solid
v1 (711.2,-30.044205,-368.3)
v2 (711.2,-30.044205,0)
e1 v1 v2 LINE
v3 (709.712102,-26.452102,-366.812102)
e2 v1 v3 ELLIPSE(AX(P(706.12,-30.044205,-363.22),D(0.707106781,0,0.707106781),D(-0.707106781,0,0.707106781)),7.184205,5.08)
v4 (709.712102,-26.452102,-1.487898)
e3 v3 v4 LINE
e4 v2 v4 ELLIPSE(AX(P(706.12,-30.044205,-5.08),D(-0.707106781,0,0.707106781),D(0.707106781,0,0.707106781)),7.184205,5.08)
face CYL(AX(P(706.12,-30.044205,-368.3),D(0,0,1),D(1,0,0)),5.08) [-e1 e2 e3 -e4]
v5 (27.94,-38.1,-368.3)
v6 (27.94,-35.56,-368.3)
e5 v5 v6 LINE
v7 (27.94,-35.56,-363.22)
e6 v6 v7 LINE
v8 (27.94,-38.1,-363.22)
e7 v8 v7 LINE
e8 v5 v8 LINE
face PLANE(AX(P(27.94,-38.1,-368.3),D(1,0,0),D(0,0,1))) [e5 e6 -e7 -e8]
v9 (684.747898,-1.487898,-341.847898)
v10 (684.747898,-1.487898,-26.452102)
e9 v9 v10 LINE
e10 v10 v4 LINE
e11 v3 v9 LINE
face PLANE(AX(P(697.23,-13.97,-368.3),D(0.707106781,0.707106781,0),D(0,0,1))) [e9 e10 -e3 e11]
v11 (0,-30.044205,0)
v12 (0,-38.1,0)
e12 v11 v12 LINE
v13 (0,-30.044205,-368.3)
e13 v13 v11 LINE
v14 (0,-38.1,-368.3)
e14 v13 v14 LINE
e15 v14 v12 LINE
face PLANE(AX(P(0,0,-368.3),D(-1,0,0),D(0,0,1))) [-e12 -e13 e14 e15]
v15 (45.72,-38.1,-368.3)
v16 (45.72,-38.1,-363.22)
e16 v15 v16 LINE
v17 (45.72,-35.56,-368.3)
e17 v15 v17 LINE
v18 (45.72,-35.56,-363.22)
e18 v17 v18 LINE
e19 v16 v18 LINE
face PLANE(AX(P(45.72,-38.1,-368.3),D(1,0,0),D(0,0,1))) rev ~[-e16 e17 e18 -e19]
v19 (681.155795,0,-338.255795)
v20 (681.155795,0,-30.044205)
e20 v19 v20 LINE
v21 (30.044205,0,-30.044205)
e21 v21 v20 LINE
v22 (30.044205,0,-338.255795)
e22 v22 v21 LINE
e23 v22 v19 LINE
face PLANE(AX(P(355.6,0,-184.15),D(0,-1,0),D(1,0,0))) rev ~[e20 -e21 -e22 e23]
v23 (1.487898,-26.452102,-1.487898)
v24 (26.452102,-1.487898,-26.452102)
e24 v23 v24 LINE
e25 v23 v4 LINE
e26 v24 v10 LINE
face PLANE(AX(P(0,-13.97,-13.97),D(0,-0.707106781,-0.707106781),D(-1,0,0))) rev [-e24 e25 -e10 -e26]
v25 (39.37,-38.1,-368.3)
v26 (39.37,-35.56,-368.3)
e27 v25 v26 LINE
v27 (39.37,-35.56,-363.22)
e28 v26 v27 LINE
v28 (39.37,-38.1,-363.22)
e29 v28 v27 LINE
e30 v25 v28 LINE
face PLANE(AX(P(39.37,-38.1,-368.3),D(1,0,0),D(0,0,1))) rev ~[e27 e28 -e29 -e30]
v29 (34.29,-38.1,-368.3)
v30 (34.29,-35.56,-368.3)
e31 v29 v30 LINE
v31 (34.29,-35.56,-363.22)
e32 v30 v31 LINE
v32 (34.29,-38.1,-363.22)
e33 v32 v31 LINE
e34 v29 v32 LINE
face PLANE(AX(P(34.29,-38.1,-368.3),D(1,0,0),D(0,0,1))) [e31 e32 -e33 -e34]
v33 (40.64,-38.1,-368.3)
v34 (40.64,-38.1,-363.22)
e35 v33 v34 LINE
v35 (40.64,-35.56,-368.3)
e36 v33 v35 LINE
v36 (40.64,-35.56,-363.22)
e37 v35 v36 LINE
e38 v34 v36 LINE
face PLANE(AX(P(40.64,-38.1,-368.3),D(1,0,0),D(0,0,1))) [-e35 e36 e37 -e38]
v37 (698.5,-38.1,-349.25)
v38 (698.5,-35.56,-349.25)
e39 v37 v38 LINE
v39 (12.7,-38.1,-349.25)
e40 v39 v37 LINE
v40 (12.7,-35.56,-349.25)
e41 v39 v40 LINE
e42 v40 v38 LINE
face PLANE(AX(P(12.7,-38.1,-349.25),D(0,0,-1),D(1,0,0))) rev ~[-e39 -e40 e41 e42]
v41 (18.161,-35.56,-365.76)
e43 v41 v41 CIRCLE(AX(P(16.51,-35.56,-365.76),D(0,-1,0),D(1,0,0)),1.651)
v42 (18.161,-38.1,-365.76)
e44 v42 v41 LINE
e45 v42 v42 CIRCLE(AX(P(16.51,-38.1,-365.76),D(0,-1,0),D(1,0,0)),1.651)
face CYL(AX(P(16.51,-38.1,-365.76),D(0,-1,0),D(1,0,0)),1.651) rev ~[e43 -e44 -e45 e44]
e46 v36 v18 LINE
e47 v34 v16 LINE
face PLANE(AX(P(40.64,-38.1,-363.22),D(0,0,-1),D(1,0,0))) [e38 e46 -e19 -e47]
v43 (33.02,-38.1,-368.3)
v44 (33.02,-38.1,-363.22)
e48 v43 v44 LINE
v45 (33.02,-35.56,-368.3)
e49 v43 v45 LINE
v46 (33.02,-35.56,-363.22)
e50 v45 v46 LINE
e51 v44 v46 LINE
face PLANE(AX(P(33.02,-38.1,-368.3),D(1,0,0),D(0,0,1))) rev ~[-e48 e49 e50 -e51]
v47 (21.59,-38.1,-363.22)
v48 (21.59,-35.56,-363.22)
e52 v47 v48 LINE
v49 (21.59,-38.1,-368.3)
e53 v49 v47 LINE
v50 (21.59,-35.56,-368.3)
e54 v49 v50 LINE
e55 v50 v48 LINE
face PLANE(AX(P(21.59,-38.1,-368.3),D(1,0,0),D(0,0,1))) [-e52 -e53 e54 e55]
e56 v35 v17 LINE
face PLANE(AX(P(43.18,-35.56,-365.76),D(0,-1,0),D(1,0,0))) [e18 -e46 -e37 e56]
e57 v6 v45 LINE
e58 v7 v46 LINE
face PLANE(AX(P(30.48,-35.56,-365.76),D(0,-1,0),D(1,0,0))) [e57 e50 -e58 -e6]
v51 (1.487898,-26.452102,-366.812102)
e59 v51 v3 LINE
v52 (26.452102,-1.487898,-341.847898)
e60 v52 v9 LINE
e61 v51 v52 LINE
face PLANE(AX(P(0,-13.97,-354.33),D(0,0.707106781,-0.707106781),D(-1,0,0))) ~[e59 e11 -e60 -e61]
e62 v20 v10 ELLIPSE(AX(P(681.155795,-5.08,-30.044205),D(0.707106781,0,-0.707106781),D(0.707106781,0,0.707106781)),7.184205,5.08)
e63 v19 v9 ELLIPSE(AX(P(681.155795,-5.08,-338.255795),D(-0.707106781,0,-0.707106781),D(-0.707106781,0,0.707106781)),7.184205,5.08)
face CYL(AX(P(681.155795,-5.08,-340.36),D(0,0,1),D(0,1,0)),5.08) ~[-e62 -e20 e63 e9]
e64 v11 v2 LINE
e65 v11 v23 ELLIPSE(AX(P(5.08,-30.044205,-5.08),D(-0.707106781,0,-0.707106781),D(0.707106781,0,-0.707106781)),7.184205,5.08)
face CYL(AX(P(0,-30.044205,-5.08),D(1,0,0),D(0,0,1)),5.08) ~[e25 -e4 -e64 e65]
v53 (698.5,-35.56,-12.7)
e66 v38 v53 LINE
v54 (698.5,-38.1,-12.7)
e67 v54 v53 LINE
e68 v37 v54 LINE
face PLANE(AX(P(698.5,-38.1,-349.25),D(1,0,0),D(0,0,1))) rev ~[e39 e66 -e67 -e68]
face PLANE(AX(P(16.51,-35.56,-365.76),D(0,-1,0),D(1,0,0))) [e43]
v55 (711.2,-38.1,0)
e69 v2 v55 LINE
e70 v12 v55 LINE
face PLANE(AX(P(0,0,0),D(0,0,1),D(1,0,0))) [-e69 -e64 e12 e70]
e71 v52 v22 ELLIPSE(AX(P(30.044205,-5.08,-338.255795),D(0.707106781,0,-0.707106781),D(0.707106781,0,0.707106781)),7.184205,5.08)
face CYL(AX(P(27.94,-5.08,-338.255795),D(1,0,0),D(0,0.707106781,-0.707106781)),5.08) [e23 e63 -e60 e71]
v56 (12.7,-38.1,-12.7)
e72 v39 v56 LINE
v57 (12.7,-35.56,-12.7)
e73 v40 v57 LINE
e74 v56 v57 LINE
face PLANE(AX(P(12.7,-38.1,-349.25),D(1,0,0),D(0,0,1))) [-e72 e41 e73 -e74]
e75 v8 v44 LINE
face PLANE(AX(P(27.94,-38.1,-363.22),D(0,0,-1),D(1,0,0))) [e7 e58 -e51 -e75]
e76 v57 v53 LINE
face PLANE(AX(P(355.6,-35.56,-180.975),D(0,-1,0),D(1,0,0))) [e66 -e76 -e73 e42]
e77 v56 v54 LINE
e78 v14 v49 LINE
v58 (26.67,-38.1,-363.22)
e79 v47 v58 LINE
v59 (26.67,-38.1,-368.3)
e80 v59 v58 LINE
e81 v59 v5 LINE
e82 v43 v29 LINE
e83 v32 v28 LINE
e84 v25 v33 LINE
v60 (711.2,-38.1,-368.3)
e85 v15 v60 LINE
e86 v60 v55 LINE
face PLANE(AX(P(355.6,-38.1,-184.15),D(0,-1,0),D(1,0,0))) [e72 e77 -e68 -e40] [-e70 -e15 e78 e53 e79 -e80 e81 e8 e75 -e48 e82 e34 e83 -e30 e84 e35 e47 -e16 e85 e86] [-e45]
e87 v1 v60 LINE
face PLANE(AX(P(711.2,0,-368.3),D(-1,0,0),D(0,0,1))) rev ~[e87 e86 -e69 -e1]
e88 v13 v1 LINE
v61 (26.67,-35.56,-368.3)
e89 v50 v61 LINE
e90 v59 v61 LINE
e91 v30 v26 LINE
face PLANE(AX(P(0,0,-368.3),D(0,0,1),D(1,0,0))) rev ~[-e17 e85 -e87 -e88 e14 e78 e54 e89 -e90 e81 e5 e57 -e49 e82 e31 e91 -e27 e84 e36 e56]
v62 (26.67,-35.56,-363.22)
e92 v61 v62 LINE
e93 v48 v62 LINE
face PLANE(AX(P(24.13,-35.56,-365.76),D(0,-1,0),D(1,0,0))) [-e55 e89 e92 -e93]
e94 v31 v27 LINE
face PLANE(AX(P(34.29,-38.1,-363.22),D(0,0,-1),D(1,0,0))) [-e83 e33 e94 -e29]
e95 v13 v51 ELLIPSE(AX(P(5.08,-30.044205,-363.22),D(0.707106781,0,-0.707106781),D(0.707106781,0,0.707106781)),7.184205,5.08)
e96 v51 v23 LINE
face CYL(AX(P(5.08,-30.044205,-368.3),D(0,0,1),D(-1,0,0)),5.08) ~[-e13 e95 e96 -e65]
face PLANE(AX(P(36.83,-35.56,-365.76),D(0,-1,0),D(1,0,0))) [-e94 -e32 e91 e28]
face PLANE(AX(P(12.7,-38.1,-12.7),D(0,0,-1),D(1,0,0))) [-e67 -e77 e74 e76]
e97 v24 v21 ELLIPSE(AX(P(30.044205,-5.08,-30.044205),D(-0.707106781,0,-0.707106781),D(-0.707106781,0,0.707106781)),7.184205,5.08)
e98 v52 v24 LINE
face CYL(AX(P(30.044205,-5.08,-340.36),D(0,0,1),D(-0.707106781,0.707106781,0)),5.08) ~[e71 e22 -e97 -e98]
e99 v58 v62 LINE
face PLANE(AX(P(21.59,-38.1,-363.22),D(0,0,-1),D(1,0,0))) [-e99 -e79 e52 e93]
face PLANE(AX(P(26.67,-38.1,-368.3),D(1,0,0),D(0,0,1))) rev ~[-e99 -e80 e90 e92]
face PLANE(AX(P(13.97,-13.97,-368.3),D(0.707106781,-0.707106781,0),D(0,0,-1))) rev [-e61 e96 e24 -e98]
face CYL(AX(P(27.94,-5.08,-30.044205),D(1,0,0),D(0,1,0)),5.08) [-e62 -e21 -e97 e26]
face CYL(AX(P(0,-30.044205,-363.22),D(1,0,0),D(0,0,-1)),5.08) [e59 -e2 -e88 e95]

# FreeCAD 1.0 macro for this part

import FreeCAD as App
import Part
import Sketcher
from FreeCAD import Vector
Q = App.Units.Quantity


def edges_at(feature, points):
    """Names of the edges that pass closest to the given points."""
    edges = feature.Shape.Edges
    near = lambda p: min(range(len(edges)), key=lambda i: edges[i].distToShape(Part.Vertex(*p))[0])
    return sorted({f"Edge{near(p) + 1}" for p in points})


def add_polygon(sketch, points):
    """Adds a closed chain of lines whose ends are joined by coincident constraints."""
    first, n = sketch.GeometryCount, len(points)
    for a, b in zip(points, points[1:] + points[:1]):
        sketch.addGeometry(Part.LineSegment(App.Vector(*a, 0), App.Vector(*b, 0)), False)
    for i in range(n):
        sketch.addConstraint(Sketcher.Constraint("Coincident", first + i, 2, first + (i + 1) % n, 1))

doc = App.newDocument("Part")
body = doc.addObject("PartDesign::Body", "Body")

sketch1 = doc.addObject("Sketcher::SketchObject", "Sketch")
body.addObject(sketch1)
sketch1.AttachmentSupport = (doc.XZ_Plane, [""])
sketch1.MapMode = "FlatFace"
add_polygon(sketch1, [(0, 0), (0, -368), (711, -368), (711, 0)])
sketch1.addConstraint(Sketcher.Constraint("Vertical", 0))
sketch1.addConstraint(Sketcher.Constraint("Horizontal", 1))
sketch1.addConstraint(Sketcher.Constraint("Vertical", 2))
sketch1.addConstraint(Sketcher.Constraint("Horizontal", 3))
sketch1.addConstraint(Sketcher.Constraint("Coincident", 3, 2, -1, 1))
sketch1.addConstraint(Sketcher.Constraint("DistanceX", 1, 1, 1, 2, Q("28 in")))
sketch1.addConstraint(Sketcher.Constraint("DistanceY", 0, 2, 0, 1, Q("14.5 in")))
pad1 = doc.addObject("PartDesign::Pad", "Pad")
body.addObject(pad1)
pad1.Profile = sketch1
pad1.Length = Q("1.5 in")

sketch2 = doc.addObject("Sketcher::SketchObject", "Sketch001")
body.addObject(sketch2)
sketch2.AttachmentSupport = (doc.XZ_Plane, [""])
sketch2.MapMode = "FlatFace"
sketch2.AttachmentOffset = App.Placement(Vector(0, 0, 1.5 * 25.4), App.Rotation())
add_polygon(sketch2, [(13, -13), (13, -349), (698, -349), (698, -13)])
sketch2.addConstraint(Sketcher.Constraint("Vertical", 0))
sketch2.addConstraint(Sketcher.Constraint("Horizontal", 1))
sketch2.addConstraint(Sketcher.Constraint("Vertical", 2))
sketch2.addConstraint(Sketcher.Constraint("Horizontal", 3))
sketch2.addConstraint(Sketcher.Constraint("DistanceX", 1, 1, 1, 2, Q("27 in")))
sketch2.addConstraint(Sketcher.Constraint("DistanceY", 0, 2, 0, 1, Q("13.25 in")))
sketch2.addConstraint(Sketcher.Constraint("DistanceX", -1, 1, 0, 2, Q("0.5 in")))
sketch2.addConstraint(Sketcher.Constraint("DistanceY", 2, 2, -1, 1, Q("0.5 in")))
pocket1 = doc.addObject("PartDesign::Pocket", "Pocket")
body.addObject(pocket1)
pocket1.Profile = sketch2
pocket1.Length = Q("0.1 in")

sketch3 = doc.addObject("Sketcher::SketchObject", "Sketch002")
body.addObject(sketch3)
sketch3.AttachmentSupport = (doc.XZ_Plane, [""])
sketch3.MapMode = "FlatFace"
sketch3.AttachmentOffset = App.Placement(Vector(0, 0, 1.5 * 25.4), App.Rotation())
add_polygon(sketch3, [(21.6, -363.2), (21.6, -368.3), (26.7, -368.3), (26.7, -363.2)])
add_polygon(sketch3, [(40.6, -363.2), (40.6, -368.3), (45.7, -368.3), (45.7, -363.2)])
add_polygon(sketch3, [(34.3, -363.2), (34.3, -368.3), (39.4, -368.3), (39.4, -363.2)])
add_polygon(sketch3, [(27.9, -363.2), (27.9, -368.3), (33, -368.3), (33, -363.2)])
sketch3.addGeometry(Part.Circle(Vector(16.5, -365.8, 0), Vector(0, 0, 1), 1.7), False)
sketch3.addConstraint(Sketcher.Constraint("Vertical", 0))
sketch3.addConstraint(Sketcher.Constraint("Horizontal", 1))
sketch3.addConstraint(Sketcher.Constraint("Vertical", 2))
sketch3.addConstraint(Sketcher.Constraint("Horizontal", 3))
sketch3.addConstraint(Sketcher.Constraint("Vertical", 4))
sketch3.addConstraint(Sketcher.Constraint("Horizontal", 5))
sketch3.addConstraint(Sketcher.Constraint("Vertical", 6))
sketch3.addConstraint(Sketcher.Constraint("Horizontal", 7))
sketch3.addConstraint(Sketcher.Constraint("Vertical", 8))
sketch3.addConstraint(Sketcher.Constraint("Horizontal", 9))
sketch3.addConstraint(Sketcher.Constraint("Vertical", 10))
sketch3.addConstraint(Sketcher.Constraint("Horizontal", 11))
sketch3.addConstraint(Sketcher.Constraint("Vertical", 12))
sketch3.addConstraint(Sketcher.Constraint("Horizontal", 13))
sketch3.addConstraint(Sketcher.Constraint("Vertical", 14))
sketch3.addConstraint(Sketcher.Constraint("Horizontal", 15))
sketch3.addConstraint(Sketcher.Constraint("Horizontal", 1, 2, 4, 2))
sketch3.addConstraint(Sketcher.Constraint("Horizontal", 3, 2, 6, 2))
sketch3.addConstraint(Sketcher.Constraint("Horizontal", 5, 2, 8, 2))
sketch3.addConstraint(Sketcher.Constraint("Horizontal", 7, 2, 10, 2))
sketch3.addConstraint(Sketcher.Constraint("Horizontal", 9, 2, 12, 2))
sketch3.addConstraint(Sketcher.Constraint("Horizontal", 11, 2, 14, 2))
sketch3.addConstraint(Sketcher.Constraint("Equal", 3, 5))
sketch3.addConstraint(Sketcher.Constraint("Equal", 7, 9))
sketch3.addConstraint(Sketcher.Constraint("Equal", 11, 13))
sketch3.addConstraint(Sketcher.Constraint("Equal", 15, 0))
sketch3.addConstraint(Sketcher.Constraint("Diameter", 16, Q("0.13 in")))
sketch3.addConstraint(Sketcher.Constraint("DistanceX", 1, 1, 1, 2, Q("0.2 in")))
sketch3.addConstraint(Sketcher.Constraint("DistanceY", 16, 3, -1, 1, Q("14.4 in")))
sketch3.addConstraint(Sketcher.Constraint("DistanceY", 0, 2, -1, 1, Q("14.5 in")))
sketch3.addConstraint(Sketcher.Constraint("DistanceX", -1, 1, 4, 2, Q("1.6 in")))
sketch3.addConstraint(Sketcher.Constraint("DistanceX", -1, 1, 12, 2, Q("1.1 in")))
sketch3.addConstraint(Sketcher.Constraint("DistanceX", 16, 3, 0, 2, Q("0.2 in")))
sketch3.addConstraint(Sketcher.Constraint("DistanceX", 1, 2, 8, 2, Q("0.3 in")))
sketch3.addConstraint(Sketcher.Constraint("DistanceX", -1, 1, 16, 3, Q("0.65 in")))
pocket2 = doc.addObject("PartDesign::Pocket", "Pocket001")
body.addObject(pocket2)
pocket2.Profile = sketch3
pocket2.Length = Q("0.1 in")

sketch4 = doc.addObject("Sketcher::SketchObject", "Sketch003")
body.addObject(sketch4)
sketch4.AttachmentSupport = (doc.XZ_Plane, [""])
sketch4.MapMode = "FlatFace"
sketch4.AttachmentOffset = App.Placement(Vector(0, 0, 1.5 * 25.4), App.Rotation())
add_polygon(sketch4, [(21.6, -363.2), (21.6, -368.3), (26.7, -368.3), (26.7, -363.2)])
add_polygon(sketch4, [(40.6, -363.2), (40.6, -368.3), (45.7, -368.3), (45.7, -363.2)])
add_polygon(sketch4, [(34.3, -363.2), (34.3, -368.3), (39.4, -368.3), (39.4, -363.2)])
add_polygon(sketch4, [(27.9, -363.2), (27.9, -368.3), (33, -368.3), (33, -363.2)])
sketch4.addGeometry(Part.Circle(Vector(16.5, -365.8, 0), Vector(0, 0, 1), 1.7), False)
sketch4.addConstraint(Sketcher.Constraint("Vertical", 0))
sketch4.addConstraint(Sketcher.Constraint("Horizontal", 1))
sketch4.addConstraint(Sketcher.Constraint("Vertical", 2))
sketch4.addConstraint(Sketcher.Constraint("Horizontal", 3))
sketch4.addConstraint(Sketcher.Constraint("Vertical", 4))
sketch4.addConstraint(Sketcher.Constraint("Horizontal", 5))
sketch4.addConstraint(Sketcher.Constraint("Vertical", 6))
sketch4.addConstraint(Sketcher.Constraint("Horizontal", 7))
sketch4.addConstraint(Sketcher.Constraint("Vertical", 8))
sketch4.addConstraint(Sketcher.Constraint("Horizontal", 9))
sketch4.addConstraint(Sketcher.Constraint("Vertical", 10))
sketch4.addConstraint(Sketcher.Constraint("Horizontal", 11))
sketch4.addConstraint(Sketcher.Constraint("Vertical", 12))
sketch4.addConstraint(Sketcher.Constraint("Horizontal", 13))
sketch4.addConstraint(Sketcher.Constraint("Vertical", 14))
sketch4.addConstraint(Sketcher.Constraint("Horizontal", 15))
sketch4.addConstraint(Sketcher.Constraint("Horizontal", 1, 2, 4, 2))
sketch4.addConstraint(Sketcher.Constraint("Horizontal", 3, 2, 6, 2))
sketch4.addConstraint(Sketcher.Constraint("Horizontal", 5, 2, 8, 2))
sketch4.addConstraint(Sketcher.Constraint("Horizontal", 7, 2, 10, 2))
sketch4.addConstraint(Sketcher.Constraint("Horizontal", 9, 2, 12, 2))
sketch4.addConstraint(Sketcher.Constraint("Horizontal", 11, 2, 14, 2))
sketch4.addConstraint(Sketcher.Constraint("Equal", 3, 5))
sketch4.addConstraint(Sketcher.Constraint("Equal", 7, 9))
sketch4.addConstraint(Sketcher.Constraint("Equal", 11, 13))
sketch4.addConstraint(Sketcher.Constraint("Equal", 15, 0))
sketch4.addConstraint(Sketcher.Constraint("Diameter", 16, Q("0.13 in")))
sketch4.addConstraint(Sketcher.Constraint("DistanceX", 1, 1, 1, 2, Q("0.2 in")))
sketch4.addConstraint(Sketcher.Constraint("DistanceY", 16, 3, -1, 1, Q("14.4 in")))
sketch4.addConstraint(Sketcher.Constraint("DistanceY", 0, 2, -1, 1, Q("14.5 in")))
sketch4.addConstraint(Sketcher.Constraint("DistanceX", -1, 1, 4, 2, Q("1.6 in")))
sketch4.addConstraint(Sketcher.Constraint("DistanceX", -1, 1, 12, 2, Q("1.1 in")))
sketch4.addConstraint(Sketcher.Constraint("DistanceX", 16, 3, 0, 2, Q("0.2 in")))
sketch4.addConstraint(Sketcher.Constraint("DistanceX", 1, 2, 8, 2, Q("0.3 in")))
sketch4.addConstraint(Sketcher.Constraint("DistanceX", -1, 1, 16, 3, Q("0.65 in")))
pocket3 = doc.addObject("PartDesign::Pocket", "Pocket002")
body.addObject(pocket3)
pocket3.Profile = sketch4
pocket3.Length = Q("0.1 in")
doc.recompute()

chamfer = doc.addObject("PartDesign::Chamfer", "Chamfer")
body.addObject(chamfer)
chamfer.Base = (pocket3, edges_at(pocket3, [
    (355.6, 0, -368.3),
    (0, 0, -184.15),
    (711.2, 0, -184.15),
    (355.6, 0, 0),
]))
chamfer.Size = Q("1.1 in")
doc.recompute()

fillet = doc.addObject("PartDesign::Fillet", "Fillet")
body.addObject(fillet)
fillet.Base = (chamfer, edges_at(chamfer, [
    (683.26, 0, -184.15),
    (355.6, 0, -340.36),
    (27.94, 0, -184.15),
    (355.6, 0, -27.94),
    (711.2, -27.94, -184.15),
    (355.6, -27.94, 0),
    (355.6, -27.94, -368.3),
    (0, -27.94, -184.15),
]))
fillet.Radius = Q("0.2 in")

doc.recompute()
